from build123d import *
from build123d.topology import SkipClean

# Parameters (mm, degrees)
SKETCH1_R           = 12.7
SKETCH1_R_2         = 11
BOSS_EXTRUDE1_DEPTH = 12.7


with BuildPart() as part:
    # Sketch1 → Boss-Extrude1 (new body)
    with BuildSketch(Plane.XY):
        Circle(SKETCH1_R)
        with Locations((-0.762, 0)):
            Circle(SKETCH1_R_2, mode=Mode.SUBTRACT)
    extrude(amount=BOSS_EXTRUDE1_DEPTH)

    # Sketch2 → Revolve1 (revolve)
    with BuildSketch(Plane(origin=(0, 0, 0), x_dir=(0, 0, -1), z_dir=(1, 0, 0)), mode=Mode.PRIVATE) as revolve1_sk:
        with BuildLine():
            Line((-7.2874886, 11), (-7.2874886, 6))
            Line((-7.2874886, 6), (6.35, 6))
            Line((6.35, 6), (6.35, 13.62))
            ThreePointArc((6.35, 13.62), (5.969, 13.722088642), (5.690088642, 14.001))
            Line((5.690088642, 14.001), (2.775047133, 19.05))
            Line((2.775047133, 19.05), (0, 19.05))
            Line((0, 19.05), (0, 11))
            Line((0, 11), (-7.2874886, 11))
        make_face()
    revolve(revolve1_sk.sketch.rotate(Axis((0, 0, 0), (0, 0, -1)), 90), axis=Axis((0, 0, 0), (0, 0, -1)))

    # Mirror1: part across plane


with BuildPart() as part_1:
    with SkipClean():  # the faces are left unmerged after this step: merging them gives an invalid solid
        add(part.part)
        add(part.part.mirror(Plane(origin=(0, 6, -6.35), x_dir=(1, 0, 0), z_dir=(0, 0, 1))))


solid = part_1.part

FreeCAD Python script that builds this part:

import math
import FreeCAD as App
import Part
import Sketcher

V = App.Vector
Q = App.Units.Quantity

doc = App.newDocument("Part")
body = doc.addObject("PartDesign::Body", "Body")

sketch1 = body.newObject("Sketcher::SketchObject", "Sketch")
sketch1.AttachmentSupport = (doc.getObject("XY_Plane"), [""])
sketch1.MapMode = "FlatFace"
sketch1.addGeometry(Part.Circle(V(0, 0, 0), V(0, 0, 1), 13), False)
sketch1.addGeometry(Part.Circle(V(-1, 0, 0), V(0, 0, 1), 11), False)
sketch1.addConstraint(Sketcher.Constraint("Coincident", 0, 3, -1, 1))
sketch1.addConstraint(Sketcher.Constraint("PointOnObject", 1, 3, -1))
sketch1.addConstraint(Sketcher.Constraint("Diameter", 0, Q("1 in")))
sketch1.addConstraint(Sketcher.Constraint("Diameter", 1, 22.0))
sketch1.addConstraint(Sketcher.Constraint("DistanceX", 1, 3, -1, 1, Q("0.03 in")))
pad1 = body.newObject("PartDesign::Pad", "Pad")
pad1.Profile = sketch1
pad1.Length = Q("0.5 in")

sketch2 = body.newObject("Sketcher::SketchObject", "Sketch001")
sketch2.AttachmentSupport = (doc.getObject("YZ_Plane"), [""])
sketch2.MapMode = "FlatFace"
sketch2.addGeometry(Part.LineSegment(V(11, 7.3, 0), V(6, 7.3, 0)), False)
sketch2.addGeometry(Part.LineSegment(V(6, 7.3, 0), V(6, -6.3, 0)), False)
sketch2.addGeometry(Part.LineSegment(V(6, -6.3, 0), V(13.6, -6.3, 0)), False)
sketch2.addGeometry(Part.ArcOfCircle(Part.Circle(V(14.4, -6.3, 0), V(0, 0, 1), 0.8), math.radians(120), math.radians(180)), False)
sketch2.addGeometry(Part.LineSegment(V(14, -5.7, 0), V(19.1, -2.8, 0)), False)
sketch2.addGeometry(Part.LineSegment(V(19.1, -2.8, 0), V(19.1, 0, 0)), False)
sketch2.addGeometry(Part.LineSegment(V(19.1, 0, 0), V(11, 0, 0)), False)
sketch2.addGeometry(Part.LineSegment(V(11, 0, 0), V(11, 7.3, 0)), False)
sketch2.addConstraint(Sketcher.Constraint("Coincident", 0, 2, 1, 1))
sketch2.addConstraint(Sketcher.Constraint("Coincident", 1, 2, 2, 1))
sketch2.addConstraint(Sketcher.Constraint("Coincident", 2, 2, 3, 2))
sketch2.addConstraint(Sketcher.Constraint("Tangent", 3, 1, 4, 1))
sketch2.addConstraint(Sketcher.Constraint("Coincident", 4, 2, 5, 1))
sketch2.addConstraint(Sketcher.Constraint("Coincident", 5, 2, 6, 1))
sketch2.addConstraint(Sketcher.Constraint("Coincident", 6, 2, 7, 1))
sketch2.addConstraint(Sketcher.Constraint("Coincident", 7, 2, 0, 1))
sketch2.addConstraint(Sketcher.Constraint("Horizontal", 0))
sketch2.addConstraint(Sketcher.Constraint("Vertical", 1))
sketch2.addConstraint(Sketcher.Constraint("Horizontal", 2))
sketch2.addConstraint(Sketcher.Constraint("Vertical", 5))
sketch2.addConstraint(Sketcher.Constraint("Horizontal", 6))
sketch2.addConstraint(Sketcher.Constraint("Vertical", 7))
sketch2.addConstraint(Sketcher.Constraint("PointOnObject", 5, 2, -1))
sketch2.addConstraint(Sketcher.Constraint("Horizontal", 3, 3, 1, 2))
sketch2.addConstraint(Sketcher.Constraint("Radius", 3, Q("0.03 in")))
sketch2.addConstraint(Sketcher.Constraint("DistanceX", 2, 1, 2, 2, Q("0.3 in")))
sketch2.addConstraint(Sketcher.Constraint("Angle", 4, Q("30 deg")))
sketch2.addConstraint(Sketcher.Constraint("DistanceY", 3, 3, -1, 1, Q("0.25 in")))
sketch2.addConstraint(Sketcher.Constraint("DistanceX", -1, 1, 4, 2, Q("0.75 in")))
sketch2.addConstraint(Sketcher.Constraint("DistanceX", 0, 2, 0, 1, 5.0))
sketch2.addConstraint(Sketcher.Constraint("DistanceX", 6, 2, 6, 1, 8.05))
sketch2.addConstraint(Sketcher.Constraint("DistanceY", 1, 2, 1, 1, 13.637489))
revolution = body.newObject("PartDesign::Revolution", "Revolution")
revolution.Profile = sketch2
revolution.ReferenceAxis = (sketch2, ["V_Axis"])
revolution.Angle = 360
body2 = doc.addObject("PartDesign::Body", "Body001")
doc.recompute()

body2.BaseFeature = body
doc.recompute()

mirroring = doc.addObject("Part::Mirroring", "Mirroring")
mirroring.Source = body
mirroring.Base = V(0, 6, -6.35)
mirroring.Normal = V(0, 0, 1)
body3 = doc.addObject("PartDesign::Body", "Body002")
body3.BaseFeature = mirroring
boolean = body2.newObject("PartDesign::Boolean", "Boolean")
boolean.Type = "Fuse"
boolean.addObjects([body3])
doc.recompute()
mirroring.Visibility = False

doc.recompute()
